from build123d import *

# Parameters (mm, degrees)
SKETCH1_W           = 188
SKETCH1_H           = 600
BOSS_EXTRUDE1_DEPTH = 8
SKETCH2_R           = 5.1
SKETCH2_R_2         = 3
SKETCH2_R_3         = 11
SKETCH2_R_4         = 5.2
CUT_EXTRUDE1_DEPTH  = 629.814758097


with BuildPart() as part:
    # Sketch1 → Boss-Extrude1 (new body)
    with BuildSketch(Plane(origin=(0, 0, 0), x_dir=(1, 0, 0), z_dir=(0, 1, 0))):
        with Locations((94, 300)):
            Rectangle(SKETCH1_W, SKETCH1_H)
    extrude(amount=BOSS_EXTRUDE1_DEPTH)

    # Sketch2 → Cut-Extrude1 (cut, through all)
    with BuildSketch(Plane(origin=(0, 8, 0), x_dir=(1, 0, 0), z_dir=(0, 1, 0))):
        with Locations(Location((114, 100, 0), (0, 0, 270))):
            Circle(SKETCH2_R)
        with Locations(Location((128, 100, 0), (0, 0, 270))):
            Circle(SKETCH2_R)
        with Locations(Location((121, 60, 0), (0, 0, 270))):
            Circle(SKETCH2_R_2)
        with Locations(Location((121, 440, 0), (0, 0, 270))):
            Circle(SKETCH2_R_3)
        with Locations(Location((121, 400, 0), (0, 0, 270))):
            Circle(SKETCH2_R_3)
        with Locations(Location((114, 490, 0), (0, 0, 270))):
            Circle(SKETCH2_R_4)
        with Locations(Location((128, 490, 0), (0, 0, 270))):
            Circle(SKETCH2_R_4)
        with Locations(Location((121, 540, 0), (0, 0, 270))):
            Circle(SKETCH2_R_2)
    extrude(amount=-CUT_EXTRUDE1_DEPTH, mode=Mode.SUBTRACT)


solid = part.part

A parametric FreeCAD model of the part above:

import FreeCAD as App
import Part
import Sketcher

V = App.Vector
Q = App.Units.Quantity


def add_polygon(sketch, points):
    """Adds a closed chain of lines whose ends are joined by coincident constraints."""
    first, n = sketch.GeometryCount, len(points)
    for a, b in zip(points, points[1:] + points[:1]):
        sketch.addGeometry(Part.LineSegment(App.Vector(*a, 0), App.Vector(*b, 0)), False)
    for i in range(n):
        sketch.addConstraint(Sketcher.Constraint("Coincident", first + i, 2, first + (i + 1) % n, 1))

doc = App.newDocument("Part")
body = doc.addObject("PartDesign::Body", "Body")

# Sketch on XZ plane
sketch1 = doc.addObject("Sketcher::SketchObject", "Sketch")
body.addObject(sketch1)
sketch1.AttachmentSupport = (doc.XZ_Plane, [""])
sketch1.MapMode = "FlatFace"
add_polygon(sketch1, [(0, -600), (0, 0), (188, 0), (188, -600)])  # lines 0-3
sketch1.addConstraint(Sketcher.Constraint("Vertical", 0))
sketch1.addConstraint(Sketcher.Constraint("Horizontal", 1))
sketch1.addConstraint(Sketcher.Constraint("Vertical", 2))
sketch1.addConstraint(Sketcher.Constraint("Horizontal", 3))
sketch1.addConstraint(Sketcher.Constraint("Coincident", 0, 2, -1, 1))
sketch1.addConstraint(Sketcher.Constraint("DistanceX", 1, 1, 1, 2, Q("188 mm")))
sketch1.addConstraint(Sketcher.Constraint("DistanceY", 0, 1, 0, 2, Q("600 mm")))
pad1 = doc.addObject("PartDesign::Pad", "Pad")
body.addObject(pad1)
pad1.Profile = sketch1
pad1.Length = 8
pad1.Reversed = True

# Sketch on XZ plane
sketch2 = doc.addObject("Sketcher::SketchObject", "Sketch001")
body.addObject(sketch2)
sketch2.AttachmentSupport = (doc.XZ_Plane, [""])
sketch2.MapMode = "FlatFace"
sketch2.AttachmentOffset = App.Placement(V(0, 0, -8), App.Rotation())
sketch2.addGeometry(Part.Circle(V(114, -100, 0), V(0, 0, 1), 5.1), False)
sketch2.addGeometry(Part.Circle(V(128, -100, 0), V(0, 0, 1), 5.1), False)
sketch2.addGeometry(Part.Circle(V(121, -60, 0), V(0, 0, 1), 3), False)
sketch2.addGeometry(Part.Circle(V(121, -440, 0), V(0, 0, 1), 11), False)
sketch2.addGeometry(Part.Circle(V(121, -400, 0), V(0, 0, 1), 11), False)
sketch2.addGeometry(Part.Circle(V(114, -490, 0), V(0, 0, 1), 5.2), False)
sketch2.addGeometry(Part.Circle(V(128, -490, 0), V(0, 0, 1), 5.2), False)
sketch2.addGeometry(Part.Circle(V(121, -540, 0), V(0, 0, 1), 3), False)
sketch2.addConstraint(Sketcher.Constraint("Equal", 0, 1))
sketch2.addConstraint(Sketcher.Constraint("Equal", 3, 4))
sketch2.addConstraint(Sketcher.Constraint("Equal", 5, 6))
sketch2.addConstraint(Sketcher.Constraint("Equal", 2, 7))
sketch2.addConstraint(Sketcher.Constraint("Horizontal", 0, 3, 1, 3))
sketch2.addConstraint(Sketcher.Constraint("Horizontal", 5, 3, 6, 3))
sketch2.addConstraint(Sketcher.Constraint("Vertical", 2, 3, 3, 3))
sketch2.addConstraint(Sketcher.Constraint("Vertical", 3, 3, 4, 3))
sketch2.addConstraint(Sketcher.Constraint("Vertical", 0, 3, 5, 3))
sketch2.addConstraint(Sketcher.Constraint("Vertical", 1, 3, 6, 3))
sketch2.addConstraint(Sketcher.Constraint("Vertical", 4, 3, 7, 3))
sketch2.addConstraint(Sketcher.Constraint("Diameter", 2, Q("6 mm")))
sketch2.addConstraint(Sketcher.Constraint("Diameter", 3, Q("22 mm")))
sketch2.addConstraint(Sketcher.Constraint("Diameter", 0, Q("10.2 mm")))
sketch2.addConstraint(Sketcher.Constraint("Diameter", 5, Q("10.4 mm")))
sketch2.addConstraint(Sketcher.Constraint("DistanceX", -1, 1, 0, 3, Q("114 mm")))
sketch2.addConstraint(Sketcher.Constraint("DistanceY", 0, 3, -1, 1, Q("100 mm")))
sketch2.addConstraint(Sketcher.Constraint("DistanceX", -1, 1, 1, 3, Q("128 mm")))
sketch2.addConstraint(Sketcher.Constraint("DistanceX", -1, 1, 2, 3, Q("121 mm")))
sketch2.addConstraint(Sketcher.Constraint("DistanceY", 2, 3, -1, 1, Q("60 mm")))
sketch2.addConstraint(Sketcher.Constraint("DistanceY", 3, 3, -1, 1, Q("440 mm")))
sketch2.addConstraint(Sketcher.Constraint("DistanceY", 4, 3, -1, 1, Q("400 mm")))
sketch2.addConstraint(Sketcher.Constraint("DistanceY", 5, 3, -1, 1, Q("490 mm")))
sketch2.addConstraint(Sketcher.Constraint("DistanceY", 7, 3, -1, 1, Q("540 mm")))
pocket1 = doc.addObject("PartDesign::Pocket", "Pocket")
body.addObject(pocket1)
pocket1.Profile = sketch2
pocket1.Type = "ThroughAll"
pocket1.Reversed = True

doc.recompute()
